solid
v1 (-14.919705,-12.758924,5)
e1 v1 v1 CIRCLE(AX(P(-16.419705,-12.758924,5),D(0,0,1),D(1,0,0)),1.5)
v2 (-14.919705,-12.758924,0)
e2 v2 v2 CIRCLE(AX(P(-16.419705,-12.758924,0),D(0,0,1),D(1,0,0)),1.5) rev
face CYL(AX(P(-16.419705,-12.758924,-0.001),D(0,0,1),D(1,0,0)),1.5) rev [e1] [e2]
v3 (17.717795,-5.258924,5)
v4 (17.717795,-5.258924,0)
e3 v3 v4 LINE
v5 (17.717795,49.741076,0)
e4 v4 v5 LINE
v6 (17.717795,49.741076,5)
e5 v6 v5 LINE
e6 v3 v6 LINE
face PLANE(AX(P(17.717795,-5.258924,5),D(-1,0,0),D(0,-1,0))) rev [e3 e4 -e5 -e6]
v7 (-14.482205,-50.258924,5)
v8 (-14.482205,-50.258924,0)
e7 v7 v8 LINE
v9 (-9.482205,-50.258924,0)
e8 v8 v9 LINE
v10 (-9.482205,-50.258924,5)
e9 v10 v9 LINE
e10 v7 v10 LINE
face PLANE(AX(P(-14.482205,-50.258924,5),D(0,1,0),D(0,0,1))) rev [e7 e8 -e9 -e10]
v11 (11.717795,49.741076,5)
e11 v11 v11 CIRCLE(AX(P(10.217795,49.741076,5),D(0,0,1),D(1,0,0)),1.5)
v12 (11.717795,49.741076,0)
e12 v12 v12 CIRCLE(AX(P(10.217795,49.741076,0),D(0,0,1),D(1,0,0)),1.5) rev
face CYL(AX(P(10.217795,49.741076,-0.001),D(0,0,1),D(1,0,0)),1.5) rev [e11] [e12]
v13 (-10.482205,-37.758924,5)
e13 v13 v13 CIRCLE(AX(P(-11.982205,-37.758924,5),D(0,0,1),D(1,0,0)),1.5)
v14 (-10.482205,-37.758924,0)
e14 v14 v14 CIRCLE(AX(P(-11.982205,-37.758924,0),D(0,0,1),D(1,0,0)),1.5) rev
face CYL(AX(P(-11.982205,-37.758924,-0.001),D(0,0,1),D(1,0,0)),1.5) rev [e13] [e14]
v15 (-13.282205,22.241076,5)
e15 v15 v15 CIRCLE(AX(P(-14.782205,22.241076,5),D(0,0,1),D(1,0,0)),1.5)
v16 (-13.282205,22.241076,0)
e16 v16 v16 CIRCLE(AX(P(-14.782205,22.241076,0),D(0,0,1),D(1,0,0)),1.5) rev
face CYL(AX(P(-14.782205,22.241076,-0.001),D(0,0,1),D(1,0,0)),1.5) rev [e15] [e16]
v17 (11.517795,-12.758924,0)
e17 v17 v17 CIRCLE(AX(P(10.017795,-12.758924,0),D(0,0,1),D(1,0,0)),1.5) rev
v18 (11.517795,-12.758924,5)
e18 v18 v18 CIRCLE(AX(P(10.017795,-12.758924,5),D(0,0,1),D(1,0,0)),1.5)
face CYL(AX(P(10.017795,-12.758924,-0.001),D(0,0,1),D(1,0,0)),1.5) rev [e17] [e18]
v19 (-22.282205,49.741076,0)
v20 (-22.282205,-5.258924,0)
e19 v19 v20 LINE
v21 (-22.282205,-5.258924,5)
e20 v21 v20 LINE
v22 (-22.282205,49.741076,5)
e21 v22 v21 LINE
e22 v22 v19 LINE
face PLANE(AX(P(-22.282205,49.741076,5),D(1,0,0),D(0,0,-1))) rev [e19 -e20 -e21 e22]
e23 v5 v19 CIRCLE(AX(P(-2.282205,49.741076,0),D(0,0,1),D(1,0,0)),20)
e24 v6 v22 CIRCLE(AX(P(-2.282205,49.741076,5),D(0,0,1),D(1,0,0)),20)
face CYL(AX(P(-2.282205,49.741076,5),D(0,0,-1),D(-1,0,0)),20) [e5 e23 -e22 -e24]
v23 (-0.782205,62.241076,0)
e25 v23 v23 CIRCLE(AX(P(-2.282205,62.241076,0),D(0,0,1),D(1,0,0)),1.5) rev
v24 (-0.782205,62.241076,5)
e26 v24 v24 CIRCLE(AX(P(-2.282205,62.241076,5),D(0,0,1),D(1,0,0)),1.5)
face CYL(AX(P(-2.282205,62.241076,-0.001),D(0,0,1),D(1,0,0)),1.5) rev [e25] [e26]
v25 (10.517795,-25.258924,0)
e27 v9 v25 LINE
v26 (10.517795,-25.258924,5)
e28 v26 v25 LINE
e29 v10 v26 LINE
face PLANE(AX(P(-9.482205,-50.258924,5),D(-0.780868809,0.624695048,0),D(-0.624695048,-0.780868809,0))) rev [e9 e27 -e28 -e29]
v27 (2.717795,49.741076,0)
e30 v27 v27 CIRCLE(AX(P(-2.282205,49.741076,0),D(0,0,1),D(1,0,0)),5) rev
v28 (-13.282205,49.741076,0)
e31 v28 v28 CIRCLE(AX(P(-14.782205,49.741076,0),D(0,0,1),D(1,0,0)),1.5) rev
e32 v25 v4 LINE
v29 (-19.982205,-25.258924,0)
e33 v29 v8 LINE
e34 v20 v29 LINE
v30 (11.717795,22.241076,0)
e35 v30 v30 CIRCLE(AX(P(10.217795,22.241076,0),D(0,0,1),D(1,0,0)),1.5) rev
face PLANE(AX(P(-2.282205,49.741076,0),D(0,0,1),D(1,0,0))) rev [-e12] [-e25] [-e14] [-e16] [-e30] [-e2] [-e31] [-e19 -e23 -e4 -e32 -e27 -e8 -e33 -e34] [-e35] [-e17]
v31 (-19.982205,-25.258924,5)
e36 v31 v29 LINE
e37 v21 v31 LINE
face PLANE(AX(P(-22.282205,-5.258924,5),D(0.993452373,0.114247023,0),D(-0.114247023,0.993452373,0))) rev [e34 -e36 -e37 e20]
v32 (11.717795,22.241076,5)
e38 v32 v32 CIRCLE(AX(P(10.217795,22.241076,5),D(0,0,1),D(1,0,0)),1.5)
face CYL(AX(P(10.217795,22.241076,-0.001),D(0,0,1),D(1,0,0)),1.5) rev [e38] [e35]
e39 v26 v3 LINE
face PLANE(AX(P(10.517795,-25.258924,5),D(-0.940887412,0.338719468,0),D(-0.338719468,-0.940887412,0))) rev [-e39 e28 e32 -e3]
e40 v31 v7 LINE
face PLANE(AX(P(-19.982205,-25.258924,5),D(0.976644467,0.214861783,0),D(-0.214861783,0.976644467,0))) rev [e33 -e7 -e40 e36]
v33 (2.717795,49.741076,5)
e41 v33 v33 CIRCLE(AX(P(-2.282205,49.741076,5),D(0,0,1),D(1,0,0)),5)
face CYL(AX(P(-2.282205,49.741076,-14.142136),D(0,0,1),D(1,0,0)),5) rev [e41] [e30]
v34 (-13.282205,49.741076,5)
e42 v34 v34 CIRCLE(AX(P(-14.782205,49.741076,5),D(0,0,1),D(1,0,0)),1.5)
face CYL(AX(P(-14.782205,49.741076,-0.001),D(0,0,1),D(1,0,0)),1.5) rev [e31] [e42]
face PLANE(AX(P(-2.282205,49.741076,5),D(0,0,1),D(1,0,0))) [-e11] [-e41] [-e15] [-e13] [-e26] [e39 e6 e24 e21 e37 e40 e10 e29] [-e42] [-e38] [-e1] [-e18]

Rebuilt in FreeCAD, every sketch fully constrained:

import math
import FreeCAD as App
import Part
import Sketcher

V = App.Vector

doc = App.newDocument("Part")
body = doc.addObject("PartDesign::Body", "Body")

# Sketch on XY plane
sketch1 = body.newObject("Sketcher::SketchObject", "Sketch")
sketch1.AttachmentSupport = (doc.getObject("XY_Plane"), [""])
sketch1.MapMode = "FlatFace"
sketch1.addGeometry([
    Part.LineSegment(V(-22.282205, 49.741076, 0), V(-22.282205, -5.258924, 0)),  # 0
    Part.LineSegment(V(-22.282205, -5.258924, 0), V(-19.982205, -25.258924, 0)),  # 1
    Part.LineSegment(V(-19.982205, -25.258924, 0), V(-14.482205, -50.258924, 0)),  # 2
    Part.LineSegment(V(-14.482205, -50.258924, 0), V(-9.482205, -50.258924, 0)),  # 3
    Part.LineSegment(V(-9.482205, -50.258924, 0), V(10.517795, -25.258924, 0)),  # 4
    Part.LineSegment(V(10.517795, -25.258924, 0), V(17.717795, -5.258924, 0)),  # 5
    Part.LineSegment(V(17.717795, -5.258924, 0), V(17.717795, 49.741076, 0)),  # 6
    Part.ArcOfCircle(Part.Circle(V(-2.282205, 49.741076, 0), V(0, 0, 1), 20), math.radians(0), math.radians(180)),  # 7
], False)
sketch1.addConstraint([
    Sketcher.Constraint("Coincident", 0, 2, 1, 1),
    Sketcher.Constraint("Coincident", 1, 2, 2, 1),
    Sketcher.Constraint("Coincident", 2, 2, 3, 1),
    Sketcher.Constraint("Coincident", 3, 2, 4, 1),
    Sketcher.Constraint("Coincident", 4, 2, 5, 1),
    Sketcher.Constraint("Coincident", 5, 2, 6, 1),
    Sketcher.Constraint("Tangent", 6, 2, 7, 1),
    Sketcher.Constraint("Tangent", 7, 2, 0, 1),
    Sketcher.Constraint("Vertical", 0),
    Sketcher.Constraint("Horizontal", 3),
    Sketcher.Constraint("Vertical", 6),
    Sketcher.Constraint("Horizontal", 1, 2, 4, 2),
    Sketcher.Constraint("Horizontal", 0, 2, 5, 2),
    Sketcher.Constraint("Radius", 7, 20.0),
    Sketcher.Constraint("DistanceX", 3, 1, 3, 2, 5.0),
    Sketcher.Constraint("DistanceY", 0, 2, 0, 1, 55.0),
    Sketcher.Constraint("DistanceY", 1, 2, 0, 2, 20.0),
    Sketcher.Constraint("DistanceY", 2, 2, 1, 2, 25.0),
    Sketcher.Constraint("DistanceX", 3, 2, 4, 2, 20.0),
    Sketcher.Constraint("DistanceX", 0, 2, 1, 2, 2.3),
    Sketcher.Constraint("DistanceX", 1, 2, 2, 2, 5.5),
    Sketcher.Constraint("DistanceX", 7, 3, -1, 1, 2.282205),
    Sketcher.Constraint("DistanceY", -1, 1, 7, 3, 49.741076),
])
pad1 = body.newObject("PartDesign::Pad", "Pad")
pad1.Profile = sketch1
pad1.Length = 5

# Sketch on XY plane
sketch2 = body.newObject("Sketcher::SketchObject", "Sketch001")
sketch2.AttachmentSupport = (doc.getObject("XY_Plane"), [""])
sketch2.MapMode = "FlatFace"
sketch2.AttachmentOffset = App.Placement(V(0, 0, 5), App.Rotation())
sketch2.addGeometry(Part.Circle(V(-2.282205, 49.741076, 0), V(0, 0, 1), 5), False)
sketch2.addConstraint([
    Sketcher.Constraint("Diameter", 0, 10.0),
    Sketcher.Constraint("DistanceX", 0, 3, -1, 1, 2.282205),
    Sketcher.Constraint("DistanceY", -1, 1, 0, 3, 49.741076),
])
pocket1 = body.newObject("PartDesign::Pocket", "Pocket")
pocket1.Profile = sketch2
pocket1.Length = 5

# Sketch on XY plane
sketch3 = body.newObject("Sketcher::SketchObject", "Sketch002")
sketch3.AttachmentSupport = (doc.getObject("XY_Plane"), [""])
sketch3.MapMode = "FlatFace"
sketch3.AttachmentOffset = App.Placement(V(0, 0, 5), App.Rotation())
sketch3.addGeometry(Part.Circle(V(-11.982205, -37.758924, 0), V(0, 0, 1), 1.5), False)
sketch3.addConstraint([
    Sketcher.Constraint("Diameter", 0, 3.0),
    Sketcher.Constraint("DistanceX", 0, 3, -1, 1, 11.982205),
    Sketcher.Constraint("DistanceY", 0, 3, -1, 1, 37.758924),
])
pocket2 = body.newObject("PartDesign::Pocket", "Pocket001")
pocket2.Profile = sketch3
pocket2.Type = "UpToFirst"

# Sketch on XY plane
sketch4 = body.newObject("Sketcher::SketchObject", "Sketch003")
sketch4.AttachmentSupport = (doc.getObject("XY_Plane"), [""])
sketch4.MapMode = "FlatFace"
sketch4.AttachmentOffset = App.Placement(V(0, 0, 5), App.Rotation())
sketch4.addGeometry(Part.Circle(V(-14.782205, 49.741076, 0), V(0, 0, 1), 1.5), False)
sketch4.addConstraint([
    Sketcher.Constraint("Diameter", 0, 3.0),
    Sketcher.Constraint("DistanceX", 0, 3, -1, 1, 14.782205),
    Sketcher.Constraint("DistanceY", -1, 1, 0, 3, 49.741076),
])
pocket3 = body.newObject("PartDesign::Pocket", "Pocket002")
pocket3.Profile = sketch4
pocket3.Type = "UpToFirst"

# Sketch on XY plane
sketch5 = body.newObject("Sketcher::SketchObject", "Sketch004")
sketch5.AttachmentSupport = (doc.getObject("XY_Plane"), [""])
sketch5.MapMode = "FlatFace"
sketch5.AttachmentOffset = App.Placement(V(0, 0, 5), App.Rotation())
sketch5.addGeometry(Part.Circle(V(10.217795, 49.741076, 0), V(0, 0, 1), 1.5), False)
sketch5.addConstraint([
    Sketcher.Constraint("Diameter", 0, 3.0),
    Sketcher.Constraint("DistanceX", -1, 1, 0, 3, 10.217795),
    Sketcher.Constraint("DistanceY", -1, 1, 0, 3, 49.741076),
])
pocket4 = body.newObject("PartDesign::Pocket", "Pocket003")
pocket4.Profile = sketch5
pocket4.Type = "UpToFirst"

# Sketch on XY plane
sketch6 = body.newObject("Sketcher::SketchObject", "Sketch005")
sketch6.AttachmentSupport = (doc.getObject("XY_Plane"), [""])
sketch6.MapMode = "FlatFace"
sketch6.AttachmentOffset = App.Placement(V(0, 0, 5), App.Rotation())
sketch6.addGeometry(Part.Circle(V(-2.282205, 62.241076, 0), V(0, 0, 1), 1.5), False)
sketch6.addConstraint([
    Sketcher.Constraint("Diameter", 0, 3.0),
    Sketcher.Constraint("DistanceX", 0, 3, -1, 1, 2.282205),
    Sketcher.Constraint("DistanceY", -1, 1, 0, 3, 62.241076),
])
pocket5 = body.newObject("PartDesign::Pocket", "Pocket004")
pocket5.Profile = sketch6
pocket5.Type = "UpToFirst"

# Sketch on XY plane
sketch7 = body.newObject("Sketcher::SketchObject", "Sketch006")
sketch7.AttachmentSupport = (doc.getObject("XY_Plane"), [""])
sketch7.MapMode = "FlatFace"
sketch7.AttachmentOffset = App.Placement(V(0, 0, 5), App.Rotation())
sketch7.addGeometry(Part.Circle(V(10.217795, 22.241076, 0), V(0, 0, 1), 1.5), False)
sketch7.addConstraint([
    Sketcher.Constraint("Diameter", 0, 3.0),
    Sketcher.Constraint("DistanceX", -1, 1, 0, 3, 10.217795),
    Sketcher.Constraint("DistanceY", -1, 1, 0, 3, 22.241076),
])
pocket6 = body.newObject("PartDesign::Pocket", "Pocket005")
pocket6.Profile = sketch7
pocket6.Type = "UpToFirst"

# Sketch on XY plane
sketch8 = body.newObject("Sketcher::SketchObject", "Sketch007")
sketch8.AttachmentSupport = (doc.getObject("XY_Plane"), [""])
sketch8.MapMode = "FlatFace"
sketch8.AttachmentOffset = App.Placement(V(0, 0, 5), App.Rotation())
sketch8.addGeometry(Part.Circle(V(-14.782205, 22.241076, 0), V(0, 0, 1), 1.5), False)
sketch8.addConstraint([
    Sketcher.Constraint("Diameter", 0, 3.0),
    Sketcher.Constraint("DistanceX", 0, 3, -1, 1, 14.782205),
    Sketcher.Constraint("DistanceY", -1, 1, 0, 3, 22.241076),
])
pocket7 = body.newObject("PartDesign::Pocket", "Pocket006")
pocket7.Profile = sketch8
pocket7.Type = "UpToFirst"

# Sketch on XY plane
sketch9 = body.newObject("Sketcher::SketchObject", "Sketch008")
sketch9.AttachmentSupport = (doc.getObject("XY_Plane"), [""])
sketch9.MapMode = "FlatFace"
sketch9.AttachmentOffset = App.Placement(V(0, 0, 5), App.Rotation())
sketch9.addGeometry(Part.Circle(V(-16.419705, -12.758924, 0), V(0, 0, 1), 1.5), False)
sketch9.addConstraint([
    Sketcher.Constraint("Diameter", 0, 3.0),
    Sketcher.Constraint("DistanceX", 0, 3, -1, 1, 16.419705),
    Sketcher.Constraint("DistanceY", 0, 3, -1, 1, 12.758924),
])
pocket8 = body.newObject("PartDesign::Pocket", "Pocket007")
pocket8.Profile = sketch9
pocket8.Type = "UpToFirst"

# Sketch on XY plane
sketch10 = body.newObject("Sketcher::SketchObject", "Sketch009")
sketch10.AttachmentSupport = (doc.getObject("XY_Plane"), [""])
sketch10.MapMode = "FlatFace"
sketch10.AttachmentOffset = App.Placement(V(0, 0, 5), App.Rotation())
sketch10.addGeometry(Part.Circle(V(10.017795, -12.758924, 0), V(0, 0, 1), 1.5), False)
sketch10.addConstraint([
    Sketcher.Constraint("Diameter", 0, 3.0),
    Sketcher.Constraint("DistanceX", -1, 1, 0, 3, 10.017795),
    Sketcher.Constraint("DistanceY", 0, 3, -1, 1, 12.758924),
])
pocket9 = body.newObject("PartDesign::Pocket", "Pocket008")
pocket9.Profile = sketch10
pocket9.Type = "UpToFirst"

doc.recompute()
